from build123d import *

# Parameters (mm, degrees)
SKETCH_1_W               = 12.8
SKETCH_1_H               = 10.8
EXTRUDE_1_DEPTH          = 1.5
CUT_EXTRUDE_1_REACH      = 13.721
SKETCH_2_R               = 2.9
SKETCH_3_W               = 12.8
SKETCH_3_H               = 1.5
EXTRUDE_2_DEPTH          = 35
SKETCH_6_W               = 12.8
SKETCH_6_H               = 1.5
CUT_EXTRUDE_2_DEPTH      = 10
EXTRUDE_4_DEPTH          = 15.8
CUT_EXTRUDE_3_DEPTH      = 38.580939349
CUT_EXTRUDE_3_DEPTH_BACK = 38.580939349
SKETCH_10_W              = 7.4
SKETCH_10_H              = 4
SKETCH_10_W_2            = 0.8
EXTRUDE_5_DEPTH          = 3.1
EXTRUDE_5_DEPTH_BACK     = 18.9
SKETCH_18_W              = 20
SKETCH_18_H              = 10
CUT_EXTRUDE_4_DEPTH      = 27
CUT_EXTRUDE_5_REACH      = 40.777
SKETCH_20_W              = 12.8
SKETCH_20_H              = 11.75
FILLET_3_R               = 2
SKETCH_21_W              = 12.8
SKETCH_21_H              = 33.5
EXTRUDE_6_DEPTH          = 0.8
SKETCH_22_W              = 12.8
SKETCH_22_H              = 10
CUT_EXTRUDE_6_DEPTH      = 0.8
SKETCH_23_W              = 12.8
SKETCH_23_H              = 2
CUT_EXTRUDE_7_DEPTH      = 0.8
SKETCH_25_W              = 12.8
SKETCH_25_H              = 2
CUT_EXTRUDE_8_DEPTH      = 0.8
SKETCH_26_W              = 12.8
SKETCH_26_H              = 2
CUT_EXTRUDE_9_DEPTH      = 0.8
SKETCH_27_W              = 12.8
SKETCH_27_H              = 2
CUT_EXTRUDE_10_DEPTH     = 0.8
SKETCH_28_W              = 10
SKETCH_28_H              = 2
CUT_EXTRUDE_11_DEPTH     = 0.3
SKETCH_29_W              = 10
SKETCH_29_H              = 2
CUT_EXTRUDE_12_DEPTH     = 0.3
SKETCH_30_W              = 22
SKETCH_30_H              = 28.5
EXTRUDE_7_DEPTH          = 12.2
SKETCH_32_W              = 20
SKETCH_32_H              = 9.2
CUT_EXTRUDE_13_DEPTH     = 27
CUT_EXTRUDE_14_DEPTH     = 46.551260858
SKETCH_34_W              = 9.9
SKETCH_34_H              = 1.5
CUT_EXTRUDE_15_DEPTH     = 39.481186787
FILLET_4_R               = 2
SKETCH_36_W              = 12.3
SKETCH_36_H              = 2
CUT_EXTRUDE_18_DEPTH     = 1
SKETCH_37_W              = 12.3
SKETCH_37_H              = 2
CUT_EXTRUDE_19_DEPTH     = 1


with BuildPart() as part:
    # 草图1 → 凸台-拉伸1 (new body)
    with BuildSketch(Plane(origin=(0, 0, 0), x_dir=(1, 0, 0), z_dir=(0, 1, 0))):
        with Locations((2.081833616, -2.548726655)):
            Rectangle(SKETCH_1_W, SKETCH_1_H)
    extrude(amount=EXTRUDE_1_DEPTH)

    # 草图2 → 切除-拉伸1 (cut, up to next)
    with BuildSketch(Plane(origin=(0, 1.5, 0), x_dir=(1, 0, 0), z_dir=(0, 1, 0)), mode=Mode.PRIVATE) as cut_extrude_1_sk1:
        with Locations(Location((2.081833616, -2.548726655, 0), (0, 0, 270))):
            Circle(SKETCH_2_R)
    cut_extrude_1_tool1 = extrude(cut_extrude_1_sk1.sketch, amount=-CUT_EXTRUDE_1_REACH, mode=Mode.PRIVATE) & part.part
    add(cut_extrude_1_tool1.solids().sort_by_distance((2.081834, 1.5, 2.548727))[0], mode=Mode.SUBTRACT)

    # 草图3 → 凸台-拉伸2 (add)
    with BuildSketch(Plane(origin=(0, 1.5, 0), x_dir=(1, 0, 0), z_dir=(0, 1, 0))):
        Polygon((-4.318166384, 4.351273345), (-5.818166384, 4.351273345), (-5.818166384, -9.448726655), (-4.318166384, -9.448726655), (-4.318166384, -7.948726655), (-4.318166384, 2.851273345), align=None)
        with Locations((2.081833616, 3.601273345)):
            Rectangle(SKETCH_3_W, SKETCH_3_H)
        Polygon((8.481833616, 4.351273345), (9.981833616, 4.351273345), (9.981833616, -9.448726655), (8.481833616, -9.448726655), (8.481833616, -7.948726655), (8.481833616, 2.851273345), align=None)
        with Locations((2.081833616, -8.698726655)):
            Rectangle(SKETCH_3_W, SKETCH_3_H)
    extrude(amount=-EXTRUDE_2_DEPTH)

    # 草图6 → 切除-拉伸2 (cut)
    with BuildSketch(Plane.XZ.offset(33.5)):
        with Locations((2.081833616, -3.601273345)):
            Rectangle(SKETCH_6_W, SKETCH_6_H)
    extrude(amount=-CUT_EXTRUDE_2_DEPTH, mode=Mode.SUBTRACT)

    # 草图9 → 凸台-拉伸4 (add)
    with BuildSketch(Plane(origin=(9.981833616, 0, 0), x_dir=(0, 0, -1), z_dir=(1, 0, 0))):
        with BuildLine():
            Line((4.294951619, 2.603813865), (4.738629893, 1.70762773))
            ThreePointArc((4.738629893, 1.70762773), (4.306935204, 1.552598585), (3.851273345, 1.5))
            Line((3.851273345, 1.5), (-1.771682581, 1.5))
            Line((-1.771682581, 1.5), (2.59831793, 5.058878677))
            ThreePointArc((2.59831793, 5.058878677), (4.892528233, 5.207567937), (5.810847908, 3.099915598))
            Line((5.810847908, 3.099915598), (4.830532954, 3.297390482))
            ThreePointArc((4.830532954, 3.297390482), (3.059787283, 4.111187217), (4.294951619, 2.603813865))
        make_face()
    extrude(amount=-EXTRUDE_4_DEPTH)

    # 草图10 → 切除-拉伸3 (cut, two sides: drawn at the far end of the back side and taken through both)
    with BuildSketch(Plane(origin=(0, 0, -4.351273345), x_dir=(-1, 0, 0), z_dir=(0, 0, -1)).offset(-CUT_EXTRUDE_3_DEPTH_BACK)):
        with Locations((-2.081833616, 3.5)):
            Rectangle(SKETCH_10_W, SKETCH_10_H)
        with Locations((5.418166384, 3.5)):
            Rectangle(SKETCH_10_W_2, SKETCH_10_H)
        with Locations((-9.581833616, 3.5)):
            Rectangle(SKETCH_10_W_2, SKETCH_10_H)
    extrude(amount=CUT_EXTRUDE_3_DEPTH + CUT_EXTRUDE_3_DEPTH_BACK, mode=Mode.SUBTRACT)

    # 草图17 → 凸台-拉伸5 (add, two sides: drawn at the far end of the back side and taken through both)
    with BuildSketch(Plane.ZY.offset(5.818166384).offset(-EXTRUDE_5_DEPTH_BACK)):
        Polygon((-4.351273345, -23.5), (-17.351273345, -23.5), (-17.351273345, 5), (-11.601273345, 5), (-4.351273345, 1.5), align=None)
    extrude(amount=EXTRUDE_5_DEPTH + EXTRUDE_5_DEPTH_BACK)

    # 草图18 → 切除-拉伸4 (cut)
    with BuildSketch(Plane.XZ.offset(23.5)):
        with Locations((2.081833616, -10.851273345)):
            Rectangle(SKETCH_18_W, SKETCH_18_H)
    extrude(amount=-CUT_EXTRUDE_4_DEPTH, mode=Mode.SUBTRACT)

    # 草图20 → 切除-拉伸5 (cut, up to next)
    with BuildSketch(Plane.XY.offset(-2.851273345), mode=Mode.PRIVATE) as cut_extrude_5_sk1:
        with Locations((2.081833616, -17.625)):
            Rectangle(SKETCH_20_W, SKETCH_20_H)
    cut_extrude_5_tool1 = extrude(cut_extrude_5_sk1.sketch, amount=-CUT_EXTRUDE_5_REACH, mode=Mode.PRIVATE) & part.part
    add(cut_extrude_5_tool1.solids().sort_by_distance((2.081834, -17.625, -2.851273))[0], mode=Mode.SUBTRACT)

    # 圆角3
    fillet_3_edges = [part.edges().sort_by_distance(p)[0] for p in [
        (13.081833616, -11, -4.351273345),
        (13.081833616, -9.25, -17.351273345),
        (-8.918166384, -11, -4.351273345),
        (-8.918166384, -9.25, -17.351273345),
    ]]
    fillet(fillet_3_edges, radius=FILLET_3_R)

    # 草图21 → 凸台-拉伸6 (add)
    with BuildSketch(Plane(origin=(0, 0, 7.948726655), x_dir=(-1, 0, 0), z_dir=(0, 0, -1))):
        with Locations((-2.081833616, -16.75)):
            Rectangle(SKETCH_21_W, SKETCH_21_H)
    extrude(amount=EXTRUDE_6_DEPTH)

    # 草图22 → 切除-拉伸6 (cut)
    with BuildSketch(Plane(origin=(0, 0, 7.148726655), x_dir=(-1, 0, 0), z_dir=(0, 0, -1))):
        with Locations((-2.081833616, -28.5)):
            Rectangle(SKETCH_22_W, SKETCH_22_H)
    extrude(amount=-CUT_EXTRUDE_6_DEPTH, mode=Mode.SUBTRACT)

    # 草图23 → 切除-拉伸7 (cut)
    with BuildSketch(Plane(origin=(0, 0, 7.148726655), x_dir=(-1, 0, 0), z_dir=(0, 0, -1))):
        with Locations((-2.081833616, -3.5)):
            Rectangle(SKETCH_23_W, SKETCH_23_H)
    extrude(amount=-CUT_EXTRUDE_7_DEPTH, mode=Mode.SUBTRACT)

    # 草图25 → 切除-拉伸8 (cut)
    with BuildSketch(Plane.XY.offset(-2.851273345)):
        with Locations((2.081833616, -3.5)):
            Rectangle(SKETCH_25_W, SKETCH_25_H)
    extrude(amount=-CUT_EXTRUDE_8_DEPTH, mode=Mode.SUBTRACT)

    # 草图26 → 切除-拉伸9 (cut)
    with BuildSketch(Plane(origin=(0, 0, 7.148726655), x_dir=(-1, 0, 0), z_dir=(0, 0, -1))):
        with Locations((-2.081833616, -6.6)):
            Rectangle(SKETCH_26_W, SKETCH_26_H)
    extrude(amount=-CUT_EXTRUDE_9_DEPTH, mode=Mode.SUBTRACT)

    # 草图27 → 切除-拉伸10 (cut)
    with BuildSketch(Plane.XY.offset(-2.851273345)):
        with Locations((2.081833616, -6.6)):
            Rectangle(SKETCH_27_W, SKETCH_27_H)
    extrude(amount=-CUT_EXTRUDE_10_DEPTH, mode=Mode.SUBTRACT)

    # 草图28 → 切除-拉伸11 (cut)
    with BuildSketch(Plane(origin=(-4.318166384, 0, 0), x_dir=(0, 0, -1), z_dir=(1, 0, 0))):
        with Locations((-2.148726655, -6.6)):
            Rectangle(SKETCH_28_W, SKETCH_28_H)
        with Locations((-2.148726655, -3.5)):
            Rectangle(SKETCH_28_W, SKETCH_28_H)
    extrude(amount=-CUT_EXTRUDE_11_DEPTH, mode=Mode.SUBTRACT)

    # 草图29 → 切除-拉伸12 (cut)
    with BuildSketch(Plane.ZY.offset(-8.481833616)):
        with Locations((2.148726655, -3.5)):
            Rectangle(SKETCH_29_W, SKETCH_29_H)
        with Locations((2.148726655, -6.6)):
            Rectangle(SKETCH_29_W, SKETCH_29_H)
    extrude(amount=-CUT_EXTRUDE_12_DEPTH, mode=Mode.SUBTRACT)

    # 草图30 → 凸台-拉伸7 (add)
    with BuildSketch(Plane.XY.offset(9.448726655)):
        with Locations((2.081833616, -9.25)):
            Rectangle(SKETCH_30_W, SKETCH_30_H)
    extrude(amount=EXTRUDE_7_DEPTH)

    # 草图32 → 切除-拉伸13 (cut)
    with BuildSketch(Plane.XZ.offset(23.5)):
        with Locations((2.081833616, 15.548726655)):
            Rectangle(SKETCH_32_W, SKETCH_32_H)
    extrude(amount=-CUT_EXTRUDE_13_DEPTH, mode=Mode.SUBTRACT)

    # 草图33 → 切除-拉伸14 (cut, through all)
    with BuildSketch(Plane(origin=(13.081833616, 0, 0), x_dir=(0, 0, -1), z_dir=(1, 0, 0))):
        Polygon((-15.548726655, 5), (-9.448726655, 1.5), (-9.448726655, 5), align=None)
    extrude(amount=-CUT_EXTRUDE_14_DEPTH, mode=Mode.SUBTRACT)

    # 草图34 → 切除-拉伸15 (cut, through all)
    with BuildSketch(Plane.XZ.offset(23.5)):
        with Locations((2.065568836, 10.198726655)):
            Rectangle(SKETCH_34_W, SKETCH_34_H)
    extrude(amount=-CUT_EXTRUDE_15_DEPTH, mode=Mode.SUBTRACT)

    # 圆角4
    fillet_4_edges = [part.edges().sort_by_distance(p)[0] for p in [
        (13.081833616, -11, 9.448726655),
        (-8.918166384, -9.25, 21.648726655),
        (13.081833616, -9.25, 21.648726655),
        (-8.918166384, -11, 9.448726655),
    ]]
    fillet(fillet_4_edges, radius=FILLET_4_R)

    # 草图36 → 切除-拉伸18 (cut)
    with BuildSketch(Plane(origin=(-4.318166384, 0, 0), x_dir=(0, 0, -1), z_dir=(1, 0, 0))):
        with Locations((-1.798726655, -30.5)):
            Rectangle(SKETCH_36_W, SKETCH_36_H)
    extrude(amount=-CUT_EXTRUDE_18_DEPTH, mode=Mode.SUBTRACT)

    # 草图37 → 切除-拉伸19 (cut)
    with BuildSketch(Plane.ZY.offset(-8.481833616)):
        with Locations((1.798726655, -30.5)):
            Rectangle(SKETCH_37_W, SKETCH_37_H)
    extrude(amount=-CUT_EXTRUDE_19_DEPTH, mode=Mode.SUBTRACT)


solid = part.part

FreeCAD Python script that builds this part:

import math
import FreeCAD as App
import Part
import Sketcher
Q = App.Units.Quantity


def edges_at(feature, points):
    """Names of the edges that pass closest to the given points."""
    edges = feature.Shape.Edges
    near = lambda p: min(range(len(edges)), key=lambda i: edges[i].distToShape(Part.Vertex(*p))[0])
    return sorted({f"Edge{near(p) + 1}" for p in points})


def add_polygon(sketch, points):
    """Adds a closed chain of lines whose ends are joined by coincident constraints."""
    first, n = sketch.GeometryCount, len(points)
    for a, b in zip(points, points[1:] + points[:1]):
        sketch.addGeometry(Part.LineSegment(App.Vector(*a, 0), App.Vector(*b, 0)), False)
    for i in range(n):
        sketch.addConstraint(Sketcher.Constraint("Coincident", first + i, 2, first + (i + 1) % n, 1))

doc = App.newDocument("Part")
body = doc.addObject("PartDesign::Body", "Body")

# Sketch on XZ plane
sketch1 = body.newObject("Sketcher::SketchObject", "Sketch")
sketch1.AttachmentSupport = (doc.getObject("XZ_Plane"), [""])
sketch1.MapMode = "FlatFace"
add_polygon(sketch1, [(-4, -3), (-4, 8), (8, 8), (8, -3)])  # lines 0-3
sketch1.addConstraint([
    Sketcher.Constraint("Vertical", 0),
    Sketcher.Constraint("Horizontal", 1),
    Sketcher.Constraint("Vertical", 2),
    Sketcher.Constraint("Horizontal", 3),
    Sketcher.Constraint("DistanceX", 1, 1, 1, 2, Q("12.8 mm")),
    Sketcher.Constraint("DistanceY", 0, 1, 0, 2, Q("10.8 mm")),
    Sketcher.Constraint("DistanceX", 0, 2, -1, 1, Q("4.318166 mm")),
    Sketcher.Constraint("DistanceY", -1, 1, 0, 2, Q("7.948727 mm")),
])
pad1 = body.newObject("PartDesign::Pad", "Pad")
pad1.Profile = sketch1
pad1.Length = 1.5
pad1.Reversed = True

# Sketch on XZ plane
sketch2 = body.newObject("Sketcher::SketchObject", "Sketch001")
sketch2.AttachmentSupport = (doc.getObject("XZ_Plane"), [""])
sketch2.MapMode = "FlatFace"
sketch2.AttachmentOffset = App.Placement(App.Vector(0, 0, -1.5), App.Rotation())
sketch2.addGeometry(Part.Circle(App.Vector(2.1, 2.5, 0), App.Vector(0, 0, 1), 2.9), False)
sketch2.addConstraint([
    Sketcher.Constraint("Diameter", 0, Q("5.8 mm")),
    Sketcher.Constraint("DistanceX", -1, 1, 0, 3, Q("2.081834 mm")),
    Sketcher.Constraint("DistanceY", -1, 1, 0, 3, Q("2.548727 mm")),
])
pocket1 = body.newObject("PartDesign::Pocket", "Pocket")
pocket1.Profile = sketch2
pocket1.Type = "UpToFirst"
pocket1.Reversed = True

# Sketch on XZ plane
sketch3 = body.newObject("Sketcher::SketchObject", "Sketch002")
sketch3.AttachmentSupport = (doc.getObject("XZ_Plane"), [""])
sketch3.MapMode = "FlatFace"
sketch3.AttachmentOffset = App.Placement(App.Vector(0, 0, -1.5), App.Rotation())
add_polygon(sketch3, [(-6, -4), (-6, 9), (10, 9), (10, -4)])  # lines 0-3
add_polygon(sketch3, [(-4, 8), (-4, -3), (8, -3), (8, 8)])  # lines 4-7
sketch3.addConstraint([
    Sketcher.Constraint("Vertical", 0),
    Sketcher.Constraint("Horizontal", 1),
    Sketcher.Constraint("Vertical", 2),
    Sketcher.Constraint("Horizontal", 3),
    Sketcher.Constraint("Vertical", 4),
    Sketcher.Constraint("Horizontal", 5),
    Sketcher.Constraint("Vertical", 6),
    Sketcher.Constraint("Horizontal", 7),
    Sketcher.Constraint("DistanceX", 1, 1, 1, 2, Q("15.8 mm")),
    Sketcher.Constraint("DistanceX", 5, 1, 5, 2, Q("12.8 mm")),
    Sketcher.Constraint("DistanceY", 0, 1, 0, 2, Q("13.8 mm")),
    Sketcher.Constraint("DistanceY", 4, 2, 4, 1, Q("10.8 mm")),
    Sketcher.Constraint("DistanceX", 3, 2, 4, 2, Q("1.5 mm")),
    Sketcher.Constraint("DistanceY", 3, 2, 4, 2, Q("1.5 mm")),
    Sketcher.Constraint("DistanceX", 0, 2, -1, 1, Q("5.818166 mm")),
    Sketcher.Constraint("DistanceY", -1, 1, 0, 2, Q("9.448727 mm")),
])
pad2 = body.newObject("PartDesign::Pad", "Pad001")
pad2.Profile = sketch3
pad2.Length = 35

# Sketch on XZ plane
sketch4 = body.newObject("Sketcher::SketchObject", "Sketch003")
sketch4.AttachmentSupport = (doc.getObject("XZ_Plane"), [""])
sketch4.MapMode = "FlatFace"
sketch4.AttachmentOffset = App.Placement(App.Vector(0, 0, 33.5), App.Rotation())
add_polygon(sketch4, [(-4.3, -2.9), (-4.3, -4.4), (8.5, -4.4), (8.5, -2.9)])  # lines 0-3
sketch4.addConstraint([
    Sketcher.Constraint("Vertical", 0),
    Sketcher.Constraint("Horizontal", 1),
    Sketcher.Constraint("Vertical", 2),
    Sketcher.Constraint("Horizontal", 3),
    Sketcher.Constraint("DistanceX", 1, 1, 1, 2, Q("12.8 mm")),
    Sketcher.Constraint("DistanceY", 0, 2, 0, 1, Q("1.5 mm")),
    Sketcher.Constraint("DistanceX", 0, 2, -1, 1, Q("4.318166 mm")),
    Sketcher.Constraint("DistanceY", 0, 2, -1, 1, Q("4.351273 mm")),
])
pocket2 = body.newObject("PartDesign::Pocket", "Pocket001")
pocket2.Profile = sketch4
pocket2.Length = 10

# Sketch on YZ plane
sketch5 = body.newObject("Sketcher::SketchObject", "Sketch004")
sketch5.AttachmentSupport = (doc.getObject("YZ_Plane"), [""])
sketch5.MapMode = "FlatFace"
sketch5.AttachmentOffset = App.Placement(App.Vector(0, 0, 9.981834), App.Rotation())
sketch5.addGeometry([
    Part.LineSegment(App.Vector(1.7, -4.7, 0), App.Vector(2.6, -4.3, 0)),  # 0
    Part.ArcOfCircle(Part.Circle(App.Vector(3.5, -3.9, 0), App.Vector(0, 0, 1), 1), math.radians(-102), math.radians(206)),  # 1
    Part.LineSegment(App.Vector(3.3, -4.8, 0), App.Vector(3.1, -5.8, 0)),  # 2
    Part.ArcOfCircle(Part.Circle(App.Vector(3.5, -3.9, 0), App.Vector(0, 0, 1), 2), math.radians(-102), math.radians(39)),  # 3
    Part.LineSegment(App.Vector(5.1, -2.6, 0), App.Vector(1.5, 1.8, 0)),  # 4
    Part.LineSegment(App.Vector(1.5, 1.8, 0), App.Vector(1.5, -3.9, 0)),  # 5
    Part.ArcOfCircle(Part.Circle(App.Vector(3.5, -3.9, 0), App.Vector(0, 0, 1), 2), math.radians(180), math.radians(206)),  # 6
], False)
sketch5.addConstraint([
    Sketcher.Constraint("Coincident", 0, 2, 1, 2),
    Sketcher.Constraint("Coincident", 1, 1, 2, 1),
    Sketcher.Constraint("Coincident", 2, 2, 3, 1),
    Sketcher.Constraint("Coincident", 3, 2, 4, 1),
    Sketcher.Constraint("Coincident", 4, 2, 5, 1),
    Sketcher.Constraint("Tangent", 5, 2, 6, 1),
    Sketcher.Constraint("Coincident", 6, 2, 0, 1),
    Sketcher.Constraint("Vertical", 5),
    Sketcher.Constraint("Coincident", 3, 3, 1, 3),
    Sketcher.Constraint("Coincident", 6, 3, 1, 3),
    Sketcher.Constraint("Equal", 3, 6),
    Sketcher.Constraint("Radius", 1, Q("1 mm")),
    Sketcher.Constraint("Radius", 3, Q("2 mm")),
    Sketcher.Constraint("DistanceX", -1, 1, 1, 3, Q("3.5 mm")),
    Sketcher.Constraint("DistanceY", 3, 2, 4, 2, Q("4.370001 mm")),
    Sketcher.Constraint("DistanceX", 0, 2, 2, 2, Q("0.496102 mm")),
    Sketcher.Constraint("DistanceY", 5, 2, 5, 1, Q("5.622956 mm")),
    Sketcher.Constraint("DistanceY", 0, 2, -1, 1, Q("4.294952 mm")),
    Sketcher.Constraint("DistanceX", -1, 1, 1, 1, Q("3.29739 mm")),
    Sketcher.Constraint("DistanceY", 6, 2, -1, 1, Q("4.73863 mm")),
    Sketcher.Constraint("DistanceY", 0, 2, 6, 3, Q("0.443678 mm")),
])
pad3 = body.newObject("PartDesign::Pad", "Pad002")
pad3.Profile = sketch5
pad3.Length = 15.8
pad3.Reversed = True

# Sketch on XY plane
sketch6 = body.newObject("Sketcher::SketchObject", "Sketch005")
sketch6.AttachmentSupport = (doc.getObject("XY_Plane"), [""])
sketch6.MapMode = "FlatFace"
sketch6.AttachmentOffset = App.Placement(App.Vector(0, 0, -4.351273), App.Rotation())
add_polygon(sketch6, [(5.8, 5.5), (5.8, 1.5), (-1.6, 1.5), (-1.6, 5.5)])  # lines 0-3
add_polygon(sketch6, [(-5, 5.5), (-5, 1.5), (-5.8, 1.5), (-5.8, 5.5)])  # lines 4-7
add_polygon(sketch6, [(10, 5.5), (10, 1.5), (9.2, 1.5), (9.2, 5.5)])  # lines 8-11
sketch6.addConstraint([
    Sketcher.Constraint("Vertical", 0),
    Sketcher.Constraint("Horizontal", 1),
    Sketcher.Constraint("Vertical", 2),
    Sketcher.Constraint("Horizontal", 3),
    Sketcher.Constraint("Vertical", 4),
    Sketcher.Constraint("Horizontal", 5),
    Sketcher.Constraint("Vertical", 6),
    Sketcher.Constraint("Horizontal", 7),
    Sketcher.Constraint("Vertical", 8),
    Sketcher.Constraint("Horizontal", 9),
    Sketcher.Constraint("Vertical", 10),
    Sketcher.Constraint("Horizontal", 11),
    Sketcher.Constraint("Horizontal", 1, 2, 4, 2),
    Sketcher.Constraint("Horizontal", 3, 2, 6, 2),
    Sketcher.Constraint("Horizontal", 5, 2, 8, 2),
    Sketcher.Constraint("Horizontal", 7, 2, 10, 2),
    Sketcher.Constraint("Equal", 7, 9),
    Sketcher.Constraint("DistanceY", 0, 2, 0, 1, Q("4 mm")),
    Sketcher.Constraint("DistanceX", 1, 2, 1, 1, Q("7.4 mm")),
    Sketcher.Constraint("DistanceX", 5, 2, 5, 1, Q("0.8 mm")),
    Sketcher.Constraint("DistanceX", 4, 2, 8, 2, Q("15 mm")),
    Sketcher.Constraint("DistanceY", -1, 1, 0, 2, Q("1.5 mm")),
    Sketcher.Constraint("DistanceX", 4, 2, 1, 2, Q("3.4 mm")),
    Sketcher.Constraint("DistanceX", -1, 1, 0, 2, Q("5.781834 mm")),
])
pocket3 = body.newObject("PartDesign::Pocket", "Pocket002")
pocket3.Profile = sketch6
pocket3.Type = "ThroughAll"
pocket3.Midplane = True

# Sketch on YZ plane
sketch7 = body.newObject("Sketcher::SketchObject", "Sketch006")
sketch7.AttachmentSupport = (doc.getObject("YZ_Plane"), [""])
sketch7.MapMode = "FlatFace"
sketch7.AttachmentOffset = App.Placement(App.Vector(0, 0, -5.818166), App.Rotation())
add_polygon(sketch7, [(-24, -17), (-24, -4), (2, -4), (5, -12), (5, -17)])  # lines 0-4
sketch7.addConstraint([
    Sketcher.Constraint("Vertical", 0),
    Sketcher.Constraint("Horizontal", 1),
    Sketcher.Constraint("Vertical", 3),
    Sketcher.Constraint("Horizontal", 4),
    Sketcher.Constraint("DistanceX", 1, 1, 1, 2, Q("25 mm")),
    Sketcher.Constraint("DistanceY", 0, 1, 0, 2, Q("13 mm")),
    Sketcher.Constraint("DistanceX", 4, 2, 4, 1, Q("28.5 mm")),
    Sketcher.Constraint("DistanceX", -1, 1, 2, 2, Q("5 mm")),
    Sketcher.Constraint("DistanceY", 3, 2, 3, 1, Q("5.75 mm")),
    Sketcher.Constraint("DistanceY", 0, 2, -1, 1, Q("4.351273 mm")),
])
pad4 = body.newObject("PartDesign::Pad", "Pad003")
pad4.Profile = sketch7
pad4.Type = "TwoLengths"
pad4.Length = 3.1
pad4.Length2 = 18.9
pad4.Reversed = True

# Sketch on XZ plane
sketch8 = body.newObject("Sketcher::SketchObject", "Sketch007")
sketch8.AttachmentSupport = (doc.getObject("XZ_Plane"), [""])
sketch8.MapMode = "FlatFace"
sketch8.AttachmentOffset = App.Placement(App.Vector(0, 0, 23.5), App.Rotation())
add_polygon(sketch8, [(-8, -6), (-8, -16), (12, -16), (12, -6)])  # lines 0-3
sketch8.addConstraint([
    Sketcher.Constraint("Vertical", 0),
    Sketcher.Constraint("Horizontal", 1),
    Sketcher.Constraint("Vertical", 2),
    Sketcher.Constraint("Horizontal", 3),
    Sketcher.Constraint("DistanceX", 1, 1, 1, 2, Q("20 mm")),
    Sketcher.Constraint("DistanceY", 0, 2, 0, 1, Q("10 mm")),
    Sketcher.Constraint("DistanceX", 0, 2, -1, 1, Q("7.918166 mm")),
    Sketcher.Constraint("DistanceY", 0, 2, -1, 1, Q("15.851273 mm")),
])
pocket4 = body.newObject("PartDesign::Pocket", "Pocket003")
pocket4.Profile = sketch8
pocket4.Length = 27

# Sketch on XY plane
sketch9 = body.newObject("Sketcher::SketchObject", "Sketch008")
sketch9.AttachmentSupport = (doc.getObject("XY_Plane"), [""])
sketch9.MapMode = "FlatFace"
sketch9.AttachmentOffset = App.Placement(App.Vector(0, 0, -2.851273), App.Rotation())
add_polygon(sketch9, [(-4, -12), (-4, -24), (8, -24), (8, -12)])  # lines 0-3
sketch9.addConstraint([
    Sketcher.Constraint("Vertical", 0),
    Sketcher.Constraint("Horizontal", 1),
    Sketcher.Constraint("Vertical", 2),
    Sketcher.Constraint("Horizontal", 3),
    Sketcher.Constraint("DistanceX", 1, 1, 1, 2, Q("12.8 mm")),
    Sketcher.Constraint("DistanceY", 0, 2, 0, 1, Q("11.75 mm")),
    Sketcher.Constraint("DistanceY", 0, 2, -1, 1, Q("23.5 mm")),
    Sketcher.Constraint("DistanceX", 0, 2, -1, 1, Q("4.318166 mm")),
])
pocket5 = body.newObject("PartDesign::Pocket", "Pocket004")
pocket5.Profile = sketch9
pocket5.Type = "UpToFirst"
doc.recompute()

fillet = body.newObject("PartDesign::Fillet", "Fillet")
fillet.Base = (pocket5, edges_at(pocket5, [
    (13.082, -11, -4.351),
    (13.082, -9.25, -17.351),
    (-8.918, -11, -4.351),
    (-8.918, -9.25, -17.351),
]))
fillet.Radius = 2

# Sketch on XY plane
sketch10 = body.newObject("Sketcher::SketchObject", "Sketch009")
sketch10.AttachmentSupport = (doc.getObject("XY_Plane"), [""])
sketch10.MapMode = "FlatFace"
sketch10.AttachmentOffset = App.Placement(App.Vector(0, 0, 7.948727), App.Rotation())
add_polygon(sketch10, [(8, 0), (8, -34), (-4, -34), (-4, 0)])  # lines 0-3
sketch10.addConstraint([
    Sketcher.Constraint("Vertical", 0),
    Sketcher.Constraint("Horizontal", 1),
    Sketcher.Constraint("Vertical", 2),
    Sketcher.Constraint("Horizontal", 3),
    Sketcher.Constraint("PointOnObject", 2, 2, -1),
    Sketcher.Constraint("DistanceX", 1, 2, 1, 1, Q("12.8 mm")),
    Sketcher.Constraint("DistanceY", 0, 2, 0, 1, Q("33.5 mm")),
    Sketcher.Constraint("DistanceX", -1, 1, 0, 2, Q("8.481834 mm")),
])
pad5 = body.newObject("PartDesign::Pad", "Pad004")
pad5.Profile = sketch10
pad5.Length = 0.8
pad5.Reversed = True

# Sketch on XY plane
sketch11 = body.newObject("Sketcher::SketchObject", "Sketch010")
sketch11.AttachmentSupport = (doc.getObject("XY_Plane"), [""])
sketch11.MapMode = "FlatFace"
sketch11.AttachmentOffset = App.Placement(App.Vector(0, 0, 7.148727), App.Rotation())
add_polygon(sketch11, [(8, -24), (8, -34), (-4, -34), (-4, -24)])  # lines 0-3
sketch11.addConstraint([
    Sketcher.Constraint("Vertical", 0),
    Sketcher.Constraint("Horizontal", 1),
    Sketcher.Constraint("Vertical", 2),
    Sketcher.Constraint("Horizontal", 3),
    Sketcher.Constraint("DistanceY", 0, 2, 0, 1, Q("10 mm")),
    Sketcher.Constraint("DistanceX", 1, 2, 1, 1, Q("12.8 mm")),
    Sketcher.Constraint("DistanceY", 0, 2, -1, 1, Q("33.5 mm")),
    Sketcher.Constraint("DistanceX", -1, 1, 0, 2, Q("8.481834 mm")),
])
pocket6 = body.newObject("PartDesign::Pocket", "Pocket005")
pocket6.Profile = sketch11
pocket6.Length = 0.8
pocket6.Reversed = True

# Sketch on XY plane
sketch12 = body.newObject("Sketcher::SketchObject", "Sketch011")
sketch12.AttachmentSupport = (doc.getObject("XY_Plane"), [""])
sketch12.MapMode = "FlatFace"
sketch12.AttachmentOffset = App.Placement(App.Vector(0, 0, 7.148727), App.Rotation())
add_polygon(sketch12, [(8.5, -2.5), (8.5, -4.5), (-4.3, -4.5), (-4.3, -2.5)])  # lines 0-3
sketch12.addConstraint([
    Sketcher.Constraint("Vertical", 0),
    Sketcher.Constraint("Horizontal", 1),
    Sketcher.Constraint("Vertical", 2),
    Sketcher.Constraint("Horizontal", 3),
    Sketcher.Constraint("DistanceY", 0, 2, 0, 1, Q("2 mm")),
    Sketcher.Constraint("DistanceX", 1, 2, 1, 1, Q("12.8 mm")),
    Sketcher.Constraint("DistanceY", 0, 2, -1, 1, Q("4.5 mm")),
    Sketcher.Constraint("DistanceX", -1, 1, 0, 2, Q("8.481834 mm")),
])
pocket7 = body.newObject("PartDesign::Pocket", "Pocket006")
pocket7.Profile = sketch12
pocket7.Length = 0.8
pocket7.Reversed = True

# Sketch on XY plane
sketch13 = body.newObject("Sketcher::SketchObject", "Sketch012")
sketch13.AttachmentSupport = (doc.getObject("XY_Plane"), [""])
sketch13.MapMode = "FlatFace"
sketch13.AttachmentOffset = App.Placement(App.Vector(0, 0, -2.851273), App.Rotation())
add_polygon(sketch13, [(-4.3, -2.5), (-4.3, -4.5), (8.5, -4.5), (8.5, -2.5)])  # lines 0-3
sketch13.addConstraint([
    Sketcher.Constraint("Vertical", 0),
    Sketcher.Constraint("Horizontal", 1),
    Sketcher.Constraint("Vertical", 2),
    Sketcher.Constraint("Horizontal", 3),
    Sketcher.Constraint("DistanceY", 0, 2, 0, 1, Q("2 mm")),
    Sketcher.Constraint("DistanceX", 1, 1, 1, 2, Q("12.8 mm")),
    Sketcher.Constraint("DistanceY", 0, 2, -1, 1, Q("4.5 mm")),
    Sketcher.Constraint("DistanceX", 0, 2, -1, 1, Q("4.318166 mm")),
])
pocket8 = body.newObject("PartDesign::Pocket", "Pocket007")
pocket8.Profile = sketch13
pocket8.Length = 0.8

# Sketch on XY plane
sketch14 = body.newObject("Sketcher::SketchObject", "Sketch013")
sketch14.AttachmentSupport = (doc.getObject("XY_Plane"), [""])
sketch14.MapMode = "FlatFace"
sketch14.AttachmentOffset = App.Placement(App.Vector(0, 0, 7.148727), App.Rotation())
add_polygon(sketch14, [(8.5, -5.6), (8.5, -7.6), (-4.3, -7.6), (-4.3, -5.6)])  # lines 0-3
sketch14.addConstraint([
    Sketcher.Constraint("Vertical", 0),
    Sketcher.Constraint("Horizontal", 1),
    Sketcher.Constraint("Vertical", 2),
    Sketcher.Constraint("Horizontal", 3),
    Sketcher.Constraint("DistanceY", 0, 2, 0, 1, Q("2 mm")),
    Sketcher.Constraint("DistanceX", 1, 2, 1, 1, Q("12.8 mm")),
    Sketcher.Constraint("DistanceY", 0, 2, -1, 1, Q("7.6 mm")),
    Sketcher.Constraint("DistanceX", -1, 1, 0, 2, Q("8.481834 mm")),
])
pocket9 = body.newObject("PartDesign::Pocket", "Pocket008")
pocket9.Profile = sketch14
pocket9.Length = 0.8
pocket9.Reversed = True

# Sketch on XY plane
sketch15 = body.newObject("Sketcher::SketchObject", "Sketch014")
sketch15.AttachmentSupport = (doc.getObject("XY_Plane"), [""])
sketch15.MapMode = "FlatFace"
sketch15.AttachmentOffset = App.Placement(App.Vector(0, 0, -2.851273), App.Rotation())
add_polygon(sketch15, [(-4.3, -5.6), (-4.3, -7.6), (8.5, -7.6), (8.5, -5.6)])  # lines 0-3
sketch15.addConstraint([
    Sketcher.Constraint("Vertical", 0),
    Sketcher.Constraint("Horizontal", 1),
    Sketcher.Constraint("Vertical", 2),
    Sketcher.Constraint("Horizontal", 3),
    Sketcher.Constraint("DistanceY", 0, 2, 0, 1, Q("2 mm")),
    Sketcher.Constraint("DistanceX", 1, 1, 1, 2, Q("12.8 mm")),
    Sketcher.Constraint("DistanceY", 0, 2, -1, 1, Q("7.6 mm")),
    Sketcher.Constraint("DistanceX", 0, 2, -1, 1, Q("4.318166 mm")),
])
pocket10 = body.newObject("PartDesign::Pocket", "Pocket009")
pocket10.Profile = sketch15
pocket10.Length = 0.8

# Sketch on YZ plane
sketch16 = body.newObject("Sketcher::SketchObject", "Sketch015")
sketch16.AttachmentSupport = (doc.getObject("YZ_Plane"), [""])
sketch16.MapMode = "FlatFace"
sketch16.AttachmentOffset = App.Placement(App.Vector(0, 0, -4.318166), App.Rotation())
add_polygon(sketch16, [(-5.6, 7.1), (-7.6, 7.1), (-7.6, -2.9), (-5.6, -2.9)])  # lines 0-3
add_polygon(sketch16, [(-2.5, 7.1), (-4.5, 7.1), (-4.5, -2.9), (-2.5, -2.9)])  # lines 4-7
sketch16.addConstraint([
    Sketcher.Constraint("Horizontal", 0),
    Sketcher.Constraint("Vertical", 1),
    Sketcher.Constraint("Horizontal", 2),
    Sketcher.Constraint("Vertical", 3),
    Sketcher.Constraint("Horizontal", 4),
    Sketcher.Constraint("Vertical", 5),
    Sketcher.Constraint("Horizontal", 6),
    Sketcher.Constraint("Vertical", 7),
    Sketcher.Constraint("Horizontal", 3, 2, 4, 2),
    Sketcher.Constraint("Horizontal", 2, 2, 5, 2),
    Sketcher.Constraint("Equal", 2, 4),
    Sketcher.Constraint("DistanceX", 0, 2, 0, 1, Q("2 mm")),
    Sketcher.Constraint("DistanceY", 1, 2, 1, 1, Q("10 mm")),
    Sketcher.Constraint("DistanceX", 0, 2, -1, 1, Q("7.6 mm")),
    Sketcher.Constraint("DistanceX", 4, 2, -1, 1, Q("4.5 mm")),
    Sketcher.Constraint("DistanceY", -1, 1, 0, 2, Q("7.148727 mm")),
])
pocket11 = body.newObject("PartDesign::Pocket", "Pocket010")
pocket11.Profile = sketch16
pocket11.Length = 0.3

# Sketch on YZ plane
sketch17 = body.newObject("Sketcher::SketchObject", "Sketch016")
sketch17.AttachmentSupport = (doc.getObject("YZ_Plane"), [""])
sketch17.MapMode = "FlatFace"
sketch17.AttachmentOffset = App.Placement(App.Vector(0, 0, 8.481834), App.Rotation())
add_polygon(sketch17, [(-2.5, -2.9), (-4.5, -2.9), (-4.5, 7.1), (-2.5, 7.1)])  # lines 0-3
add_polygon(sketch17, [(-5.6, -2.9), (-7.6, -2.9), (-7.6, 7.1), (-5.6, 7.1)])  # lines 4-7
sketch17.addConstraint([
    Sketcher.Constraint("Horizontal", 0),
    Sketcher.Constraint("Vertical", 1),
    Sketcher.Constraint("Horizontal", 2),
    Sketcher.Constraint("Vertical", 3),
    Sketcher.Constraint("Horizontal", 4),
    Sketcher.Constraint("Vertical", 5),
    Sketcher.Constraint("Horizontal", 6),
    Sketcher.Constraint("Vertical", 7),
    Sketcher.Constraint("Horizontal", 3, 2, 4, 2),
    Sketcher.Constraint("Horizontal", 2, 2, 5, 2),
    Sketcher.Constraint("Equal", 2, 4),
    Sketcher.Constraint("DistanceX", 0, 2, 0, 1, Q("2 mm")),
    Sketcher.Constraint("DistanceY", 1, 1, 1, 2, Q("10 mm")),
    Sketcher.Constraint("DistanceX", 0, 2, -1, 1, Q("4.5 mm")),
    Sketcher.Constraint("DistanceX", 4, 2, -1, 1, Q("7.6 mm")),
    Sketcher.Constraint("DistanceY", 0, 2, -1, 1, Q("2.851273 mm")),
])
pocket12 = body.newObject("PartDesign::Pocket", "Pocket011")
pocket12.Profile = sketch17
pocket12.Length = 0.3
pocket12.Reversed = True

# Sketch on XY plane
sketch18 = body.newObject("Sketcher::SketchObject", "Sketch017")
sketch18.AttachmentSupport = (doc.getObject("XY_Plane"), [""])
sketch18.MapMode = "FlatFace"
sketch18.AttachmentOffset = App.Placement(App.Vector(0, 0, 9.448727), App.Rotation())
add_polygon(sketch18, [(-9, 5), (-9, -24), (13, -24), (13, 5)])  # lines 0-3
sketch18.addConstraint([
    Sketcher.Constraint("Vertical", 0),
    Sketcher.Constraint("Horizontal", 1),
    Sketcher.Constraint("Vertical", 2),
    Sketcher.Constraint("Horizontal", 3),
    Sketcher.Constraint("DistanceX", 1, 1, 1, 2, Q("22 mm")),
    Sketcher.Constraint("DistanceY", 0, 2, 0, 1, Q("28.5 mm")),
    Sketcher.Constraint("DistanceY", -1, 1, 2, 2, Q("5 mm")),
    Sketcher.Constraint("DistanceX", 0, 2, -1, 1, Q("8.918166 mm")),
])
pad6 = body.newObject("PartDesign::Pad", "Pad005")
pad6.Profile = sketch18
pad6.Length = 12.2

# Sketch on XZ plane
sketch19 = body.newObject("Sketcher::SketchObject", "Sketch018")
sketch19.AttachmentSupport = (doc.getObject("XZ_Plane"), [""])
sketch19.MapMode = "FlatFace"
sketch19.AttachmentOffset = App.Placement(App.Vector(0, 0, 23.5), App.Rotation())
add_polygon(sketch19, [(-8, 20), (-8, 11), (12, 11), (12, 20)])  # lines 0-3
sketch19.addConstraint([
    Sketcher.Constraint("Vertical", 0),
    Sketcher.Constraint("Horizontal", 1),
    Sketcher.Constraint("Vertical", 2),
    Sketcher.Constraint("Horizontal", 3),
    Sketcher.Constraint("DistanceX", 1, 1, 1, 2, Q("20 mm")),
    Sketcher.Constraint("DistanceY", 0, 2, 0, 1, Q("9.2 mm")),
    Sketcher.Constraint("DistanceX", 0, 2, -1, 1, Q("7.918166 mm")),
    Sketcher.Constraint("DistanceY", -1, 1, 0, 2, Q("10.948727 mm")),
])
pocket13 = body.newObject("PartDesign::Pocket", "Pocket012")
pocket13.Profile = sketch19
pocket13.Length = 27

# Sketch on YZ plane
sketch20 = body.newObject("Sketcher::SketchObject", "Sketch019")
sketch20.AttachmentSupport = (doc.getObject("YZ_Plane"), [""])
sketch20.MapMode = "FlatFace"
sketch20.AttachmentOffset = App.Placement(App.Vector(0, 0, 13.081834), App.Rotation())
add_polygon(sketch20, [(5, 15.5), (1.5, 9.4), (5, 9.4)])  # lines 0-2
sketch20.addConstraint([
    Sketcher.Constraint("Horizontal", 1),
    Sketcher.Constraint("Vertical", 2),
    Sketcher.Constraint("DistanceX", 1, 1, 1, 2, Q("3.5 mm")),
    Sketcher.Constraint("DistanceY", 2, 1, 2, 2, Q("6.1 mm")),
    Sketcher.Constraint("DistanceX", -1, 1, 1, 2, Q("5 mm")),
    Sketcher.Constraint("DistanceY", -1, 1, 0, 2, Q("9.448727 mm")),
])
pocket14 = body.newObject("PartDesign::Pocket", "Pocket013")
pocket14.Profile = sketch20
pocket14.Type = "ThroughAll"

# Sketch on XZ plane
sketch21 = body.newObject("Sketcher::SketchObject", "Sketch020")
sketch21.AttachmentSupport = (doc.getObject("XZ_Plane"), [""])
sketch21.MapMode = "FlatFace"
sketch21.AttachmentOffset = App.Placement(App.Vector(0, 0, 23.5), App.Rotation())
add_polygon(sketch21, [(-2.9, 10.9), (-2.9, 9.4), (7, 9.4), (7, 10.9)])  # lines 0-3
sketch21.addConstraint([
    Sketcher.Constraint("Vertical", 0),
    Sketcher.Constraint("Horizontal", 1),
    Sketcher.Constraint("Vertical", 2),
    Sketcher.Constraint("Horizontal", 3),
    Sketcher.Constraint("DistanceX", 1, 1, 1, 2, Q("9.9 mm")),
    Sketcher.Constraint("DistanceY", 0, 2, 0, 1, Q("1.5 mm")),
    Sketcher.Constraint("DistanceX", 0, 2, -1, 1, Q("2.884431 mm")),
    Sketcher.Constraint("DistanceY", -1, 1, 0, 2, Q("9.448727 mm")),
])
pocket15 = body.newObject("PartDesign::Pocket", "Pocket014")
pocket15.Profile = sketch21
pocket15.Type = "ThroughAll"
doc.recompute()

fillet2 = body.newObject("PartDesign::Fillet", "Fillet001")
fillet2.Base = (pocket15, edges_at(pocket15, [
    (13.082, -11, 9.449),
    (-8.918, -9.25, 21.649),
    (13.082, -9.25, 21.649),
    (-8.918, -11, 9.449),
]))
fillet2.Radius = 2

# Sketch on YZ plane
sketch22 = body.newObject("Sketcher::SketchObject", "Sketch021")
sketch22.AttachmentSupport = (doc.getObject("YZ_Plane"), [""])
sketch22.MapMode = "FlatFace"
sketch22.AttachmentOffset = App.Placement(App.Vector(0, 0, -4.318166), App.Rotation())
add_polygon(sketch22, [(-29.5, 7.9), (-31.5, 7.9), (-31.5, -4.4), (-29.5, -4.4)])  # lines 0-3
sketch22.addConstraint([
    Sketcher.Constraint("Horizontal", 0),
    Sketcher.Constraint("Vertical", 1),
    Sketcher.Constraint("Horizontal", 2),
    Sketcher.Constraint("Vertical", 3),
    Sketcher.Constraint("DistanceX", 0, 2, 0, 1, Q("2 mm")),
    Sketcher.Constraint("DistanceY", 1, 2, 1, 1, Q("12.3 mm")),
    Sketcher.Constraint("DistanceX", 0, 2, -1, 1, Q("31.5 mm")),
    Sketcher.Constraint("DistanceY", -1, 1, 0, 2, Q("7.948727 mm")),
])
pocket16 = body.newObject("PartDesign::Pocket", "Pocket015")
pocket16.Profile = sketch22
pocket16.Length = 1

# Sketch on YZ plane
sketch23 = body.newObject("Sketcher::SketchObject", "Sketch022")
sketch23.AttachmentSupport = (doc.getObject("YZ_Plane"), [""])
sketch23.MapMode = "FlatFace"
sketch23.AttachmentOffset = App.Placement(App.Vector(0, 0, 8.481834), App.Rotation())
add_polygon(sketch23, [(-29.5, -4.4), (-31.5, -4.4), (-31.5, 7.9), (-29.5, 7.9)])  # lines 0-3
sketch23.addConstraint([
    Sketcher.Constraint("Horizontal", 0),
    Sketcher.Constraint("Vertical", 1),
    Sketcher.Constraint("Horizontal", 2),
    Sketcher.Constraint("Vertical", 3),
    Sketcher.Constraint("DistanceX", 0, 2, 0, 1, Q("2 mm")),
    Sketcher.Constraint("DistanceY", 1, 1, 1, 2, Q("12.3 mm")),
    Sketcher.Constraint("DistanceX", 0, 2, -1, 1, Q("31.5 mm")),
    Sketcher.Constraint("DistanceY", 0, 2, -1, 1, Q("4.351273 mm")),
])
pocket17 = body.newObject("PartDesign::Pocket", "Pocket016")
pocket17.Profile = sketch23
pocket17.Length = 1
pocket17.Reversed = True

doc.recompute()
